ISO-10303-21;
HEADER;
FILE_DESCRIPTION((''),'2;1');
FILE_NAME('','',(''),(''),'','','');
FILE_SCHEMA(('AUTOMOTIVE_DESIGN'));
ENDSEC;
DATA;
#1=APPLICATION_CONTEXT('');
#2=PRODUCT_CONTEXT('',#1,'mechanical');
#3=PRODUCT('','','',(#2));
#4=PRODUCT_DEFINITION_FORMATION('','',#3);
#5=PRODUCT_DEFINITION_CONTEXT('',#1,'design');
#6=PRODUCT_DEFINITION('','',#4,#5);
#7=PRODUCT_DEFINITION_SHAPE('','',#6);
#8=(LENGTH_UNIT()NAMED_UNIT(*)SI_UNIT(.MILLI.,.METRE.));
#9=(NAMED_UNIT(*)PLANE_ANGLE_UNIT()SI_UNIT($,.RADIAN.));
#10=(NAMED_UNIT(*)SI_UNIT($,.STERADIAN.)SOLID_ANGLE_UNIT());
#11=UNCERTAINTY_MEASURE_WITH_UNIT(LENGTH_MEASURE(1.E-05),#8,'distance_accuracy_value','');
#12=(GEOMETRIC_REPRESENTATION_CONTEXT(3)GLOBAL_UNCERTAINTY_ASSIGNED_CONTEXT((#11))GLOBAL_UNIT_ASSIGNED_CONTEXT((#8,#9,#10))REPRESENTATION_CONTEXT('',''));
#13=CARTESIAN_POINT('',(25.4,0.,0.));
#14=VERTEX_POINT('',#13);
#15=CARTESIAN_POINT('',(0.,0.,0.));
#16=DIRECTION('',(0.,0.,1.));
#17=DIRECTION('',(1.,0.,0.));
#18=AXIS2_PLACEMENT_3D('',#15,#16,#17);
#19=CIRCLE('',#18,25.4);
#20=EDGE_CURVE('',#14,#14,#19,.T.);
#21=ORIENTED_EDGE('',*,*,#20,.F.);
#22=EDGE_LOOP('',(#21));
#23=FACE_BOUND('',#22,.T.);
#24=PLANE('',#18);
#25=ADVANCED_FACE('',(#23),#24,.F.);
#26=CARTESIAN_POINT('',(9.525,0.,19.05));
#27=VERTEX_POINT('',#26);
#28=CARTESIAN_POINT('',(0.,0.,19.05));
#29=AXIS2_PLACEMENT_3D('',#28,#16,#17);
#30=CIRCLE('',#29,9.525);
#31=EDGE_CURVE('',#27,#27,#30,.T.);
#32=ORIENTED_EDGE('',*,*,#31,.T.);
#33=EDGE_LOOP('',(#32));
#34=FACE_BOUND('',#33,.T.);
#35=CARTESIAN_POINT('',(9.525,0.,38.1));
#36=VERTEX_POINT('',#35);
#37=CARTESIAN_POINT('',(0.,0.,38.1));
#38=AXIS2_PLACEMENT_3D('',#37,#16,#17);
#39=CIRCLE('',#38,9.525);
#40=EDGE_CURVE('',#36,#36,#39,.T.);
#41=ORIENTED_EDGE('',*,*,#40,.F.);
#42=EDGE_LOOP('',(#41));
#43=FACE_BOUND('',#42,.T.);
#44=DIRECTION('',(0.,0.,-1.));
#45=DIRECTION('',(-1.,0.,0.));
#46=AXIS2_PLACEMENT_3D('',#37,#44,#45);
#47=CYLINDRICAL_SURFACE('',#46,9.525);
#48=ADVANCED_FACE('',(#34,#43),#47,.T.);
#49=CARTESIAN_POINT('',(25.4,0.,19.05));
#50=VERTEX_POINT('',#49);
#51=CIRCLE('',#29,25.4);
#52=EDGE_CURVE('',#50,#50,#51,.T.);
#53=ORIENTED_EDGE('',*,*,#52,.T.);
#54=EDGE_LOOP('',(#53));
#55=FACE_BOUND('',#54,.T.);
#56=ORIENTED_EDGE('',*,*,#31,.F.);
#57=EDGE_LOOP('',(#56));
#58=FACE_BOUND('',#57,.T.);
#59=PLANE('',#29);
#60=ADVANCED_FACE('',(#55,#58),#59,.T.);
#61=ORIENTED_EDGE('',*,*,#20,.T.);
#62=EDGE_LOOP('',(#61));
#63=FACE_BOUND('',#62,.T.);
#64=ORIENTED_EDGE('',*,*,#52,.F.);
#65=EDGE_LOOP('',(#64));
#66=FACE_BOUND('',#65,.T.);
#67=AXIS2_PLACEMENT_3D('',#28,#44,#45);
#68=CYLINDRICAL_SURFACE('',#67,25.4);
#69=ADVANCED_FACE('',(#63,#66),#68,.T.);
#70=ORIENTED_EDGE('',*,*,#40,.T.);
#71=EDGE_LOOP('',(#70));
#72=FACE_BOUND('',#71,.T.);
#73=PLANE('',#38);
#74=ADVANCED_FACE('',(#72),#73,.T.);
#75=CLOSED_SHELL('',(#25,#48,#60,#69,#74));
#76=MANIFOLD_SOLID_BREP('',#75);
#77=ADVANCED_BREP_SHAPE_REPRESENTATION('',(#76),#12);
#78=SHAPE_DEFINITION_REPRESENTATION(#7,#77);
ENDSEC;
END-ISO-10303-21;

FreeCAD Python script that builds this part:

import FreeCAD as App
import Part
import Sketcher

V = App.Vector
Q = App.Units.Quantity

doc = App.newDocument("Part")
params = doc.addObject("Spreadsheet::Sheet", "Params")
for row, (alias, value) in enumerate([
    ("sketch1_diameter", "2 in"),
    ("pad1_length", "0.75 in"),
    ("sketch2_diameter", "0.75 in"),
    ("pad2_length", "0.75 in"),
], start=1):
    params.set(f"A{row}", alias)
    params.set(f"B{row}", "=" + value)
    params.setAlias(f"B{row}", alias)

body = doc.addObject("PartDesign::Body", "Body")

# Sketch on XY plane
sketch1 = body.newObject("Sketcher::SketchObject", "Sketch")
sketch1.AttachmentSupport = (doc.getObject("XY_Plane"), [""])
sketch1.MapMode = "FlatFace"
sketch1.addGeometry(Part.Circle(V(0, 0, 0), V(0, 0, 1), 25), False)
sketch1.addConstraint([
    Sketcher.Constraint("Coincident", 0, 3, -1, 1),
    Sketcher.Constraint("Diameter", 0, Q("2 in")),
])
sketch1.setExpression("Constraints[1]", "Params.sketch1_diameter")
pad1 = body.newObject("PartDesign::Pad", "Pad")
pad1.Profile = sketch1
pad1.setExpression("Length", "Params.pad1_length")

# Sketch on XY plane
sketch2 = body.newObject("Sketcher::SketchObject", "Sketch001")
sketch2.AttachmentSupport = (doc.getObject("XY_Plane"), [""])
sketch2.MapMode = "FlatFace"
sketch2.AttachmentOffset = App.Placement(V(0, 0, 0.75 * 25.4), App.Rotation())
sketch2.addGeometry(Part.Circle(V(0, 0, 0), V(0, 0, 1), 10), False)
sketch2.addConstraint([
    Sketcher.Constraint("Coincident", 0, 3, -1, 1),
    Sketcher.Constraint("Diameter", 0, Q("0.75 in")),
])
sketch2.setExpression("Constraints[1]", "Params.sketch2_diameter")
pad2 = body.newObject("PartDesign::Pad", "Pad001")
pad2.Profile = sketch2
pad2.setExpression("Length", "Params.pad2_length")

doc.recompute()
